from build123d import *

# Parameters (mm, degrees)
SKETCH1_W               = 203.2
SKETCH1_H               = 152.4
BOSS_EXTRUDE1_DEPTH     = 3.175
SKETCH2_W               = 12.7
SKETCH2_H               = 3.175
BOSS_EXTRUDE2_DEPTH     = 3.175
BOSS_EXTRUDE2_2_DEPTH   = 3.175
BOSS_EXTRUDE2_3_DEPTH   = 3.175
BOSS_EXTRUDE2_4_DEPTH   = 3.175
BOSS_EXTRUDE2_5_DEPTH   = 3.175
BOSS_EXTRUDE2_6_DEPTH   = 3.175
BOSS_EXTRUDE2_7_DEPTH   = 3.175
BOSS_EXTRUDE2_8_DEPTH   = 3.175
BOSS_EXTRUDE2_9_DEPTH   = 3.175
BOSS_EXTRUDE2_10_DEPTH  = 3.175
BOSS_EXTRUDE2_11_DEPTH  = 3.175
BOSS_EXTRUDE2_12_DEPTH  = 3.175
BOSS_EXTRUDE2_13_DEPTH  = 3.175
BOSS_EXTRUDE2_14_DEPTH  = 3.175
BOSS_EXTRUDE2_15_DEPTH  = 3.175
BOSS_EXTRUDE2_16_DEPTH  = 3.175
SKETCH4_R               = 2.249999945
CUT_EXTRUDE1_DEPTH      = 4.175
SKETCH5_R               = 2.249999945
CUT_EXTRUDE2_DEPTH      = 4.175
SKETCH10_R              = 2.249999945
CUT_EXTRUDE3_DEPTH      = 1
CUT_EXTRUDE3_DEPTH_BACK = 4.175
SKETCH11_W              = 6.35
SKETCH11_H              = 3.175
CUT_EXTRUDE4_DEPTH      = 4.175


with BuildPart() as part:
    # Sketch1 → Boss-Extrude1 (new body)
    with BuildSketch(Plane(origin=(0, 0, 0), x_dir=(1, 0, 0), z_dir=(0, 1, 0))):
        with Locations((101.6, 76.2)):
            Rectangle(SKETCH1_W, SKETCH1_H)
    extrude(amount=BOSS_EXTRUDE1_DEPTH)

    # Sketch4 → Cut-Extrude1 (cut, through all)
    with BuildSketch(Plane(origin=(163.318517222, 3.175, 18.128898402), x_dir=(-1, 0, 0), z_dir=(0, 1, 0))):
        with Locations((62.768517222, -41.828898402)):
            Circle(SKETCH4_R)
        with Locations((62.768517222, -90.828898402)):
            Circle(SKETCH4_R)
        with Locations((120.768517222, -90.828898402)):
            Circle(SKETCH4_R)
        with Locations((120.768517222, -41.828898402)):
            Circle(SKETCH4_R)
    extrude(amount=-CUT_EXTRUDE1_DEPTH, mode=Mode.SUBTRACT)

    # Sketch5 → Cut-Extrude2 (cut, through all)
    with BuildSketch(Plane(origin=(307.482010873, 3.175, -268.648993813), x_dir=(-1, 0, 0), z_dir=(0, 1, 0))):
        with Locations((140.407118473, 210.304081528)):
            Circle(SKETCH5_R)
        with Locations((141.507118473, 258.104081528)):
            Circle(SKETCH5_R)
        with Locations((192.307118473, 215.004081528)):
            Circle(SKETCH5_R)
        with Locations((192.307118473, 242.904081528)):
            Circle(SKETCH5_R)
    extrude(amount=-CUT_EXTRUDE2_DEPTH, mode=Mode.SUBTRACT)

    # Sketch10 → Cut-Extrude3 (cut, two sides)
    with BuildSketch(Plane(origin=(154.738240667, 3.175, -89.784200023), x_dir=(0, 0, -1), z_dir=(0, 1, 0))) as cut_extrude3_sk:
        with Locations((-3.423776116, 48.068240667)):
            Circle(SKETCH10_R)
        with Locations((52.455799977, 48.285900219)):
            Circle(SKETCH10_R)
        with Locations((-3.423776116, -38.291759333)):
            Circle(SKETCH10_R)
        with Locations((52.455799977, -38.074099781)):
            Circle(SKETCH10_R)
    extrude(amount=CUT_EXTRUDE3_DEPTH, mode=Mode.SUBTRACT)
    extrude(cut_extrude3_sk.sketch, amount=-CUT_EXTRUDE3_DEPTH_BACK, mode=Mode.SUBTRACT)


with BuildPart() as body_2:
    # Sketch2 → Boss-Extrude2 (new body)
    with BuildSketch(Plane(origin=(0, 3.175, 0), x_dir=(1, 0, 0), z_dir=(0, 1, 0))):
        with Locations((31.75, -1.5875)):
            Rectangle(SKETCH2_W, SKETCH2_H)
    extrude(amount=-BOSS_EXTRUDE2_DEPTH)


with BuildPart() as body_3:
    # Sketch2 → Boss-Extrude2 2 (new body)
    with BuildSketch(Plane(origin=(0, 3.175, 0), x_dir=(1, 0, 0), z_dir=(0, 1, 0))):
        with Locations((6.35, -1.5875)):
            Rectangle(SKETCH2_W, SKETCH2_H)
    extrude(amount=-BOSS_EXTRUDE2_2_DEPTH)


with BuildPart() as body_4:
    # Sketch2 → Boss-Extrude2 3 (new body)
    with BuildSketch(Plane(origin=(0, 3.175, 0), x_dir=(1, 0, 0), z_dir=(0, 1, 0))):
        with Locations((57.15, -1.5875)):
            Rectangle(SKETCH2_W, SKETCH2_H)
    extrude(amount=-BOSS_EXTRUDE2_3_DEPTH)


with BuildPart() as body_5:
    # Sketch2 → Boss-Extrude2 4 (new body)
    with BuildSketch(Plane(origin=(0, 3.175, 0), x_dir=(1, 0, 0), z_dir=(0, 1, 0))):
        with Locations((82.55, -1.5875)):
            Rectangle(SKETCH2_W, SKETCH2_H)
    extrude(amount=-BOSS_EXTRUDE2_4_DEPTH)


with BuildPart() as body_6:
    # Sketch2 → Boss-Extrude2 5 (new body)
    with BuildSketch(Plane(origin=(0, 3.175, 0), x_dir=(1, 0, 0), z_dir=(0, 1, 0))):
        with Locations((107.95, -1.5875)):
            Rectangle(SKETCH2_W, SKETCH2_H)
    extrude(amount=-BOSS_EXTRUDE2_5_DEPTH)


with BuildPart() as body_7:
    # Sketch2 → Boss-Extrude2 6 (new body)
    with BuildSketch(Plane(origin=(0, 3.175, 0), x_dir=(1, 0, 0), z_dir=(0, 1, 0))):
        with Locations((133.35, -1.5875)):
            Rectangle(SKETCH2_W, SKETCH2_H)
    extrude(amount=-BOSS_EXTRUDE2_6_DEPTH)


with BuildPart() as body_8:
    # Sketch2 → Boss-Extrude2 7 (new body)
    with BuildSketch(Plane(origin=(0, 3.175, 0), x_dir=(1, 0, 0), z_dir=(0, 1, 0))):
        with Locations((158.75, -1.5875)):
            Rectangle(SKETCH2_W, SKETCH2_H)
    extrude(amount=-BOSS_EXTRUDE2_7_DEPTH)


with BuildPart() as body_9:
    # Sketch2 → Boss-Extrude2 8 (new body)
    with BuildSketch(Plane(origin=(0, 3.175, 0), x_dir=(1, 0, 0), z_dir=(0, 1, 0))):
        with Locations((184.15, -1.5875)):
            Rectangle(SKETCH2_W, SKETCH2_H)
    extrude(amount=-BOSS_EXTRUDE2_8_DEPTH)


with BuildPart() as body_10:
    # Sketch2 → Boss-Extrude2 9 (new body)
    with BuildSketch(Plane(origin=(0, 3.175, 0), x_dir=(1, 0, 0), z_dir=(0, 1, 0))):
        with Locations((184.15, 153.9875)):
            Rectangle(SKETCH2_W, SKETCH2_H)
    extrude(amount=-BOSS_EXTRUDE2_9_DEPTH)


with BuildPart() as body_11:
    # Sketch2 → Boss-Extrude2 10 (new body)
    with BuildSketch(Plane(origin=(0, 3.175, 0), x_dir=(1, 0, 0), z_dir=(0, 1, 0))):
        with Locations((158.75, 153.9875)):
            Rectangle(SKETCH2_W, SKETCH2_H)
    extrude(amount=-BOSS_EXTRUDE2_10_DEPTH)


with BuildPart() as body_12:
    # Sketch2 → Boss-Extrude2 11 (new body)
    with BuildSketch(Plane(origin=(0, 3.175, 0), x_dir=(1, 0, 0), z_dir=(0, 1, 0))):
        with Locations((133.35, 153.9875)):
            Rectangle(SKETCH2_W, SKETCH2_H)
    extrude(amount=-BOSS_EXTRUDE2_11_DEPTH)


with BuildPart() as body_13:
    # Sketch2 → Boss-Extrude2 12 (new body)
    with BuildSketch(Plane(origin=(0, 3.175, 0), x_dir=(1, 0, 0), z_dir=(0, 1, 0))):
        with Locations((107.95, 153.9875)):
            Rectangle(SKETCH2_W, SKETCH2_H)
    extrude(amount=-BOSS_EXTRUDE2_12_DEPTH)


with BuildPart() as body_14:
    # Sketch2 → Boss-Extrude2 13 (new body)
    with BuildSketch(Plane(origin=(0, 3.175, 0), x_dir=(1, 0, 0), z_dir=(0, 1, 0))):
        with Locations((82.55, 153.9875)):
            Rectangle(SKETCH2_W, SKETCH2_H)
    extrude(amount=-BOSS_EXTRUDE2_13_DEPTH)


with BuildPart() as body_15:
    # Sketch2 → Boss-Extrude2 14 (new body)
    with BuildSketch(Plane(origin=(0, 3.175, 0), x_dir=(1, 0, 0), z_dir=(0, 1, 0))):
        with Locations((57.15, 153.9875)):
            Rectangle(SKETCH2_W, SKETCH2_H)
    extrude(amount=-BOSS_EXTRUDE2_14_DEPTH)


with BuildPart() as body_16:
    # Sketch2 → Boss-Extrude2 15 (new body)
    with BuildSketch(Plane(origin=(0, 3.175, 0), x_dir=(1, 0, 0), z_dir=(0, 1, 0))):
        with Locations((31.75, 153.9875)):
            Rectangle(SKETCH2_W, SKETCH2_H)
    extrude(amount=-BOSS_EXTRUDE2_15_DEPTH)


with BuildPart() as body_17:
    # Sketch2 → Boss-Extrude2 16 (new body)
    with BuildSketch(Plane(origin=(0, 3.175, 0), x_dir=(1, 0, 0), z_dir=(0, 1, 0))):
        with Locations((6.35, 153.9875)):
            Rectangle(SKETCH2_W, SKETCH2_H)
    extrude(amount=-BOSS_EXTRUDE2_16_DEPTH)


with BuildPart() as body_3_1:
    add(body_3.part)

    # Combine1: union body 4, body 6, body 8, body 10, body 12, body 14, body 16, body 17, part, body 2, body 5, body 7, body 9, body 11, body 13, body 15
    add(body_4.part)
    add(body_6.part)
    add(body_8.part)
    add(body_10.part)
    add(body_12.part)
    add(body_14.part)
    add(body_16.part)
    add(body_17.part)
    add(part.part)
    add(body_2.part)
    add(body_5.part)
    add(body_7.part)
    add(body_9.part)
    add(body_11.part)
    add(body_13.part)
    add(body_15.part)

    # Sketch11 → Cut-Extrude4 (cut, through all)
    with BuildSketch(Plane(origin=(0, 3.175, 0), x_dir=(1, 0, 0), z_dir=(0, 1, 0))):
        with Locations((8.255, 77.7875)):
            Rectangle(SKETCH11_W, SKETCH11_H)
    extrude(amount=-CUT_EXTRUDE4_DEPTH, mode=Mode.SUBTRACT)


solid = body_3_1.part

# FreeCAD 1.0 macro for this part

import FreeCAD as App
import Part
import Sketcher
Q = App.Units.Quantity


def add_polygon(sketch, points):
    """Adds a closed chain of lines whose ends are joined by coincident constraints."""
    first, n = sketch.GeometryCount, len(points)
    for a, b in zip(points, points[1:] + points[:1]):
        sketch.addGeometry(Part.LineSegment(App.Vector(*a, 0), App.Vector(*b, 0)), False)
    for i in range(n):
        sketch.addConstraint(Sketcher.Constraint("Coincident", first + i, 2, first + (i + 1) % n, 1))

doc = App.newDocument("Part")
params = doc.addObject("Spreadsheet::Sheet", "Params")
for row, (alias, value) in enumerate([
    ("sketch1_width", "8 in"),
    ("sketch1_height", "6 in"),
    ("pad1_length", "0.125 in"),
    ("sketch5_width", "0.5 in"),
    ("sketch5_height", "0.125 in"),
    ("pad2_length", "0.125 in"),
    ("sketch6_width", "0.5 in"),
    ("sketch6_height", "0.125 in"),
    ("pad3_length", "0.125 in"),
    ("sketch7_width", "0.5 in"),
    ("sketch7_height", "0.125 in"),
    ("pad4_length", "0.125 in"),
    ("sketch8_width", "0.5 in"),
    ("sketch8_height", "0.125 in"),
    ("pad5_length", "0.125 in"),
    ("sketch9_width", "0.5 in"),
    ("sketch9_height", "0.125 in"),
    ("pad6_length", "0.125 in"),
    ("sketch10_width", "0.5 in"),
    ("sketch10_height", "0.125 in"),
    ("pad7_length", "0.125 in"),
    ("sketch11_width", "0.5 in"),
    ("sketch11_height", "0.125 in"),
    ("pad8_length", "0.125 in"),
    ("sketch12_width", "0.5 in"),
    ("sketch12_height", "0.125 in"),
    ("pad9_length", "0.125 in"),
    ("sketch13_width", "0.5 in"),
    ("sketch13_height", "0.125 in"),
    ("pad10_length", "0.125 in"),
    ("sketch14_width", "0.5 in"),
    ("sketch14_height", "0.125 in"),
    ("pad11_length", "0.125 in"),
    ("sketch15_width", "0.5 in"),
    ("sketch15_height", "0.125 in"),
    ("pad12_length", "0.125 in"),
    ("sketch16_width", "0.5 in"),
    ("sketch16_height", "0.125 in"),
    ("pad13_length", "0.125 in"),
    ("sketch17_width", "0.5 in"),
    ("sketch17_height", "0.125 in"),
    ("pad14_length", "0.125 in"),
    ("sketch18_width", "0.5 in"),
    ("sketch18_height", "0.125 in"),
    ("pad15_length", "0.125 in"),
    ("sketch19_width", "0.5 in"),
    ("sketch19_height", "0.125 in"),
    ("pad16_length", "0.125 in"),
    ("sketch20_width", "0.5 in"),
    ("sketch20_height", "0.125 in"),
    ("pad17_length", "0.125 in"),
    ("sketch21_width", "0.25 in"),
    ("sketch21_height", "0.125 in"),
], start=1):
    params.set(f"A{row}", alias)
    params.set(f"B{row}", "=" + value)
    params.setAlias(f"B{row}", alias)

body = doc.addObject("PartDesign::Body", "Body")

# Sketch on XZ plane
sketch1 = doc.addObject("Sketcher::SketchObject", "Sketch")
body.addObject(sketch1)
sketch1.AttachmentSupport = (doc.XZ_Plane, [""])
sketch1.MapMode = "FlatFace"
add_polygon(sketch1, [(0, -152), (0, 0), (203, 0), (203, -152)])  # lines 0-3
sketch1.addConstraint([
    Sketcher.Constraint("Vertical", 0),
    Sketcher.Constraint("Horizontal", 1),
    Sketcher.Constraint("Vertical", 2),
    Sketcher.Constraint("Horizontal", 3),
    Sketcher.Constraint("Coincident", 0, 2, -1, 1),
    Sketcher.Constraint("DistanceX", 1, 1, 1, 2, Q("8 in")),
    Sketcher.Constraint("DistanceY", 0, 1, 0, 2, Q("6 in")),
])
sketch1.setExpression("Constraints[9]", "Params.sketch1_width")
sketch1.setExpression("Constraints[10]", "Params.sketch1_height")
pad1 = doc.addObject("PartDesign::Pad", "Pad")
body.addObject(pad1)
pad1.Profile = sketch1
pad1.setExpression("Length", "Params.pad1_length")
pad1.Reversed = True

# Sketch on XZ plane
sketch2 = doc.addObject("Sketcher::SketchObject", "Sketch001")
body.addObject(sketch2)
sketch2.AttachmentSupport = (doc.XZ_Plane, [""])
sketch2.MapMode = "FlatFace"
sketch2.AttachmentOffset = App.Placement(App.Vector(0, 0, -0.125 * 25.4), App.Rotation())
sketch2.addGeometry([
    Part.Circle(App.Vector(100.5, -23.7, 0), App.Vector(0, 0, 1), 2.2),
    Part.Circle(App.Vector(100.5, -72.7, 0), App.Vector(0, 0, 1), 2.2),
    Part.Circle(App.Vector(42.5, -72.7, 0), App.Vector(0, 0, 1), 2.2),
    Part.Circle(App.Vector(42.5, -23.7, 0), App.Vector(0, 0, 1), 2.2),
], False)
sketch2.addConstraint([
    Sketcher.Constraint("Equal", 0, 1),
    Sketcher.Constraint("Equal", 1, 2),
    Sketcher.Constraint("Equal", 2, 3),
    Sketcher.Constraint("Horizontal", 1, 3, 2, 3),
    Sketcher.Constraint("Horizontal", 0, 3, 3, 3),
    Sketcher.Constraint("Vertical", 0, 3, 1, 3),
    Sketcher.Constraint("Vertical", 2, 3, 3, 3),
    Sketcher.Constraint("Diameter", 0, Q("4.5 mm")),
    Sketcher.Constraint("DistanceX", -1, 1, 0, 3, Q("100.55 mm")),
    Sketcher.Constraint("DistanceY", 0, 3, -1, 1, Q("23.7 mm")),
    Sketcher.Constraint("DistanceY", 1, 3, -1, 1, Q("72.7 mm")),
    Sketcher.Constraint("DistanceX", -1, 1, 2, 3, Q("42.55 mm")),
])
pocket1 = doc.addObject("PartDesign::Pocket", "Pocket")
body.addObject(pocket1)
pocket1.Profile = sketch2
pocket1.Type = "ThroughAll"
pocket1.Reversed = True

# Sketch on XZ plane
sketch3 = doc.addObject("Sketcher::SketchObject", "Sketch002")
body.addObject(sketch3)
sketch3.AttachmentSupport = (doc.XZ_Plane, [""])
sketch3.MapMode = "FlatFace"
sketch3.AttachmentOffset = App.Placement(App.Vector(0, 0, -0.125 * 25.4), App.Rotation())
sketch3.addGeometry([
    Part.Circle(App.Vector(167.1, -58.3, 0), App.Vector(0, 0, 1), 2.2),
    Part.Circle(App.Vector(166, -10.5, 0), App.Vector(0, 0, 1), 2.2),
    Part.Circle(App.Vector(115.2, -53.6, 0), App.Vector(0, 0, 1), 2.2),
    Part.Circle(App.Vector(115.2, -25.7, 0), App.Vector(0, 0, 1), 2.2),
], False)
sketch3.addConstraint([
    Sketcher.Constraint("Equal", 0, 1),
    Sketcher.Constraint("Equal", 1, 2),
    Sketcher.Constraint("Equal", 2, 3),
    Sketcher.Constraint("Vertical", 2, 3, 3, 3),
    Sketcher.Constraint("DistanceX", 2, 3, 1, 3, Q("2 in")),
    Sketcher.Constraint("Diameter", 0, Q("4.5 mm")),
    Sketcher.Constraint("DistanceX", 1, 3, 0, 3, Q("1.1 mm")),
    Sketcher.Constraint("DistanceY", 0, 3, 1, 3, Q("47.8 mm")),
    Sketcher.Constraint("DistanceY", 0, 3, 2, 3, Q("4.7 mm")),
    Sketcher.Constraint("DistanceY", 2, 3, 3, 3, Q("27.9 mm")),
    Sketcher.Constraint("DistanceX", -1, 1, 0, 3, Q("167.074892 mm")),
    Sketcher.Constraint("DistanceY", 0, 3, -1, 1, Q("58.344912 mm")),
])
pocket2 = doc.addObject("PartDesign::Pocket", "Pocket001")
body.addObject(pocket2)
pocket2.Profile = sketch3
pocket2.Type = "ThroughAll"
pocket2.Reversed = True

# Sketch on XZ plane
sketch4 = doc.addObject("Sketcher::SketchObject", "Sketch003")
body.addObject(sketch4)
sketch4.AttachmentSupport = (doc.XZ_Plane, [""])
sketch4.MapMode = "FlatFace"
sketch4.AttachmentOffset = App.Placement(App.Vector(0, 0, -0.125 * 25.4), App.Rotation())
sketch4.addGeometry([
    Part.Circle(App.Vector(106.7, -86.4, 0), App.Vector(0, 0, 1), 2.2),
    Part.Circle(App.Vector(106.5, -142.2, 0), App.Vector(0, 0, 1), 2.2),
    Part.Circle(App.Vector(193, -86.4, 0), App.Vector(0, 0, 1), 2.2),
    Part.Circle(App.Vector(192.8, -142.2, 0), App.Vector(0, 0, 1), 2.2),
], False)
sketch4.addConstraint([
    Sketcher.Constraint("Equal", 0, 1),
    Sketcher.Constraint("Equal", 1, 2),
    Sketcher.Constraint("Equal", 2, 3),
    Sketcher.Constraint("Horizontal", 0, 3, 2, 3),
    Sketcher.Constraint("Horizontal", 1, 3, 3, 3),
    Sketcher.Constraint("DistanceY", 1, 3, -1, 1, Q("5.6 in")),
    Sketcher.Constraint("DistanceX", 0, 3, 2, 3, Q("3.4 in")),
    Sketcher.Constraint("DistanceX", 1, 3, 3, 3, Q("3.4 in")),
    Sketcher.Constraint("Diameter", 0, Q("4.5 mm")),
    Sketcher.Constraint("DistanceX", -1, 1, 0, 3, Q("106.67 mm")),
    Sketcher.Constraint("DistanceX", -1, 1, 1, 3, Q("106.45234 mm")),
    Sketcher.Constraint("DistanceY", 0, 3, -1, 1, Q("86.360424 mm")),
])
pocket3 = doc.addObject("PartDesign::Pocket", "Pocket002")
body.addObject(pocket3)
pocket3.Profile = sketch4
pocket3.Type = "ThroughAll"
pocket3.Midplane = True
body2 = doc.addObject("PartDesign::Body", "Body001")

# Sketch on XZ plane
sketch5 = doc.addObject("Sketcher::SketchObject", "Sketch004")
body2.addObject(sketch5)
sketch5.AttachmentSupport = (doc.getObject("XZ_Plane001"), [""])
sketch5.MapMode = "FlatFace"
sketch5.AttachmentOffset = App.Placement(App.Vector(0, 0, -0.125 * 25.4), App.Rotation())
add_polygon(sketch5, [(25.4, 0), (25.4, 3.2), (38.1, 3.2), (38.1, 0)])  # lines 0-3
sketch5.addConstraint([
    Sketcher.Constraint("Vertical", 0),
    Sketcher.Constraint("Horizontal", 1),
    Sketcher.Constraint("Vertical", 2),
    Sketcher.Constraint("Horizontal", 3),
    Sketcher.Constraint("PointOnObject", 2, 2, -1),
    Sketcher.Constraint("DistanceX", 1, 1, 1, 2, Q("0.5 in")),
    Sketcher.Constraint("DistanceX", -1, 1, 0, 2, Q("1 in")),
    Sketcher.Constraint("DistanceY", 0, 1, 0, 2, Q("0.125 in")),
])
sketch5.setExpression("Constraints[9]", "Params.sketch5_width")
sketch5.setExpression("Constraints[11]", "Params.sketch5_height")
pad2 = doc.addObject("PartDesign::Pad", "Pad001")
body2.addObject(pad2)
pad2.Profile = sketch5
pad2.setExpression("Length", "Params.pad2_length")
body3 = doc.addObject("PartDesign::Body", "Body002")

# Sketch on XZ plane
sketch6 = doc.addObject("Sketcher::SketchObject", "Sketch005")
body3.addObject(sketch6)
sketch6.AttachmentSupport = (doc.getObject("XZ_Plane002"), [""])
sketch6.MapMode = "FlatFace"
sketch6.AttachmentOffset = App.Placement(App.Vector(0, 0, -0.125 * 25.4), App.Rotation())
add_polygon(sketch6, [(0, 0), (0, 3.2), (12.7, 3.2), (12.7, 0)])  # lines 0-3
sketch6.addConstraint([
    Sketcher.Constraint("Vertical", 0),
    Sketcher.Constraint("Horizontal", 1),
    Sketcher.Constraint("Vertical", 2),
    Sketcher.Constraint("Horizontal", 3),
    Sketcher.Constraint("Coincident", 3, 2, -1, 1),
    Sketcher.Constraint("DistanceX", 1, 1, 1, 2, Q("0.5 in")),
    Sketcher.Constraint("DistanceY", 0, 1, 0, 2, Q("0.125 in")),
])
sketch6.setExpression("Constraints[9]", "Params.sketch6_width")
sketch6.setExpression("Constraints[10]", "Params.sketch6_height")
pad3 = doc.addObject("PartDesign::Pad", "Pad002")
body3.addObject(pad3)
pad3.Profile = sketch6
pad3.setExpression("Length", "Params.pad3_length")
body4 = doc.addObject("PartDesign::Body", "Body003")

# Sketch on XZ plane
sketch7 = doc.addObject("Sketcher::SketchObject", "Sketch006")
body4.addObject(sketch7)
sketch7.AttachmentSupport = (doc.getObject("XZ_Plane003"), [""])
sketch7.MapMode = "FlatFace"
sketch7.AttachmentOffset = App.Placement(App.Vector(0, 0, -0.125 * 25.4), App.Rotation())
add_polygon(sketch7, [(50.8, 0), (50.8, 3.2), (63.5, 3.2), (63.5, 0)])  # lines 0-3
sketch7.addConstraint([
    Sketcher.Constraint("Vertical", 0),
    Sketcher.Constraint("Horizontal", 1),
    Sketcher.Constraint("Vertical", 2),
    Sketcher.Constraint("Horizontal", 3),
    Sketcher.Constraint("PointOnObject", 2, 2, -1),
    Sketcher.Constraint("DistanceX", 1, 1, 1, 2, Q("0.5 in")),
    Sketcher.Constraint("DistanceX", -1, 1, 0, 2, Q("2 in")),
    Sketcher.Constraint("DistanceY", 0, 1, 0, 2, Q("0.125 in")),
])
sketch7.setExpression("Constraints[9]", "Params.sketch7_width")
sketch7.setExpression("Constraints[11]", "Params.sketch7_height")
pad4 = doc.addObject("PartDesign::Pad", "Pad003")
body4.addObject(pad4)
pad4.Profile = sketch7
pad4.setExpression("Length", "Params.pad4_length")
body5 = doc.addObject("PartDesign::Body", "Body004")

# Sketch on XZ plane
sketch8 = doc.addObject("Sketcher::SketchObject", "Sketch007")
body5.addObject(sketch8)
sketch8.AttachmentSupport = (doc.getObject("XZ_Plane004"), [""])
sketch8.MapMode = "FlatFace"
sketch8.AttachmentOffset = App.Placement(App.Vector(0, 0, -0.125 * 25.4), App.Rotation())
add_polygon(sketch8, [(76.2, 0), (76.2, 3.2), (88.9, 3.2), (88.9, 0)])  # lines 0-3
sketch8.addConstraint([
    Sketcher.Constraint("Vertical", 0),
    Sketcher.Constraint("Horizontal", 1),
    Sketcher.Constraint("Vertical", 2),
    Sketcher.Constraint("Horizontal", 3),
    Sketcher.Constraint("PointOnObject", 2, 2, -1),
    Sketcher.Constraint("DistanceX", 1, 1, 1, 2, Q("0.5 in")),
    Sketcher.Constraint("DistanceX", -1, 1, 0, 2, Q("3 in")),
    Sketcher.Constraint("DistanceY", 0, 1, 0, 2, Q("0.125 in")),
])
sketch8.setExpression("Constraints[9]", "Params.sketch8_width")
sketch8.setExpression("Constraints[11]", "Params.sketch8_height")
pad5 = doc.addObject("PartDesign::Pad", "Pad004")
body5.addObject(pad5)
pad5.Profile = sketch8
pad5.setExpression("Length", "Params.pad5_length")
body6 = doc.addObject("PartDesign::Body", "Body005")

# Sketch on XZ plane
sketch9 = doc.addObject("Sketcher::SketchObject", "Sketch008")
body6.addObject(sketch9)
sketch9.AttachmentSupport = (doc.getObject("XZ_Plane005"), [""])
sketch9.MapMode = "FlatFace"
sketch9.AttachmentOffset = App.Placement(App.Vector(0, 0, -0.125 * 25.4), App.Rotation())
add_polygon(sketch9, [(101.6, 0), (101.6, 3.2), (114.3, 3.2), (114.3, 0)])  # lines 0-3
sketch9.addConstraint([
    Sketcher.Constraint("Vertical", 0),
    Sketcher.Constraint("Horizontal", 1),
    Sketcher.Constraint("Vertical", 2),
    Sketcher.Constraint("Horizontal", 3),
    Sketcher.Constraint("PointOnObject", 2, 2, -1),
    Sketcher.Constraint("DistanceX", 1, 1, 1, 2, Q("0.5 in")),
    Sketcher.Constraint("DistanceX", -1, 1, 0, 2, Q("4 in")),
    Sketcher.Constraint("DistanceY", 0, 1, 0, 2, Q("0.125 in")),
])
sketch9.setExpression("Constraints[9]", "Params.sketch9_width")
sketch9.setExpression("Constraints[11]", "Params.sketch9_height")
pad6 = doc.addObject("PartDesign::Pad", "Pad005")
body6.addObject(pad6)
pad6.Profile = sketch9
pad6.setExpression("Length", "Params.pad6_length")
body7 = doc.addObject("PartDesign::Body", "Body006")

# Sketch on XZ plane
sketch10 = doc.addObject("Sketcher::SketchObject", "Sketch009")
body7.addObject(sketch10)
sketch10.AttachmentSupport = (doc.getObject("XZ_Plane006"), [""])
sketch10.MapMode = "FlatFace"
sketch10.AttachmentOffset = App.Placement(App.Vector(0, 0, -0.125 * 25.4), App.Rotation())
add_polygon(sketch10, [(127, 0), (127, 3.2), (139.7, 3.2), (139.7, 0)])  # lines 0-3
sketch10.addConstraint([
    Sketcher.Constraint("Vertical", 0),
    Sketcher.Constraint("Horizontal", 1),
    Sketcher.Constraint("Vertical", 2),
    Sketcher.Constraint("Horizontal", 3),
    Sketcher.Constraint("PointOnObject", 2, 2, -1),
    Sketcher.Constraint("DistanceX", 1, 1, 1, 2, Q("0.5 in")),
    Sketcher.Constraint("DistanceX", -1, 1, 0, 2, Q("5 in")),
    Sketcher.Constraint("DistanceY", 0, 1, 0, 2, Q("0.125 in")),
])
sketch10.setExpression("Constraints[9]", "Params.sketch10_width")
sketch10.setExpression("Constraints[11]", "Params.sketch10_height")
pad7 = doc.addObject("PartDesign::Pad", "Pad006")
body7.addObject(pad7)
pad7.Profile = sketch10
pad7.setExpression("Length", "Params.pad7_length")
body8 = doc.addObject("PartDesign::Body", "Body007")

# Sketch on XZ plane
sketch11 = doc.addObject("Sketcher::SketchObject", "Sketch010")
body8.addObject(sketch11)
sketch11.AttachmentSupport = (doc.getObject("XZ_Plane007"), [""])
sketch11.MapMode = "FlatFace"
sketch11.AttachmentOffset = App.Placement(App.Vector(0, 0, -0.125 * 25.4), App.Rotation())
add_polygon(sketch11, [(152.4, 0), (152.4, 3.2), (165.1, 3.2), (165.1, 0)])  # lines 0-3
sketch11.addConstraint([
    Sketcher.Constraint("Vertical", 0),
    Sketcher.Constraint("Horizontal", 1),
    Sketcher.Constraint("Vertical", 2),
    Sketcher.Constraint("Horizontal", 3),
    Sketcher.Constraint("PointOnObject", 2, 2, -1),
    Sketcher.Constraint("DistanceX", 1, 1, 1, 2, Q("0.5 in")),
    Sketcher.Constraint("DistanceX", -1, 1, 0, 2, Q("6 in")),
    Sketcher.Constraint("DistanceY", 0, 1, 0, 2, Q("0.125 in")),
])
sketch11.setExpression("Constraints[9]", "Params.sketch11_width")
sketch11.setExpression("Constraints[11]", "Params.sketch11_height")
pad8 = doc.addObject("PartDesign::Pad", "Pad007")
body8.addObject(pad8)
pad8.Profile = sketch11
pad8.setExpression("Length", "Params.pad8_length")
body9 = doc.addObject("PartDesign::Body", "Body008")

# Sketch on XZ plane
sketch12 = doc.addObject("Sketcher::SketchObject", "Sketch011")
body9.addObject(sketch12)
sketch12.AttachmentSupport = (doc.getObject("XZ_Plane008"), [""])
sketch12.MapMode = "FlatFace"
sketch12.AttachmentOffset = App.Placement(App.Vector(0, 0, -0.125 * 25.4), App.Rotation())
add_polygon(sketch12, [(177.8, 0), (177.8, 3.2), (190.5, 3.2), (190.5, 0)])  # lines 0-3
sketch12.addConstraint([
    Sketcher.Constraint("Vertical", 0),
    Sketcher.Constraint("Horizontal", 1),
    Sketcher.Constraint("Vertical", 2),
    Sketcher.Constraint("Horizontal", 3),
    Sketcher.Constraint("PointOnObject", 2, 2, -1),
    Sketcher.Constraint("DistanceX", 1, 1, 1, 2, Q("0.5 in")),
    Sketcher.Constraint("DistanceX", -1, 1, 0, 2, Q("7 in")),
    Sketcher.Constraint("DistanceY", 0, 1, 0, 2, Q("0.125 in")),
])
sketch12.setExpression("Constraints[9]", "Params.sketch12_width")
sketch12.setExpression("Constraints[11]", "Params.sketch12_height")
pad9 = doc.addObject("PartDesign::Pad", "Pad008")
body9.addObject(pad9)
pad9.Profile = sketch12
pad9.setExpression("Length", "Params.pad9_length")
body10 = doc.addObject("PartDesign::Body", "Body009")

# Sketch on XZ plane
sketch13 = doc.addObject("Sketcher::SketchObject", "Sketch012")
body10.addObject(sketch13)
sketch13.AttachmentSupport = (doc.getObject("XZ_Plane009"), [""])
sketch13.MapMode = "FlatFace"
sketch13.AttachmentOffset = App.Placement(App.Vector(0, 0, -0.125 * 25.4), App.Rotation())
add_polygon(sketch13, [(177.8, -155.6), (177.8, -152.4), (190.5, -152.4), (190.5, -155.6)])  # lines 0-3
sketch13.addConstraint([
    Sketcher.Constraint("Vertical", 0),
    Sketcher.Constraint("Horizontal", 1),
    Sketcher.Constraint("Vertical", 2),
    Sketcher.Constraint("Horizontal", 3),
    Sketcher.Constraint("DistanceX", 1, 1, 1, 2, Q("0.5 in")),
    Sketcher.Constraint("DistanceX", -1, 1, 0, 2, Q("7 in")),
    Sketcher.Constraint("DistanceY", 0, 2, -1, 1, Q("6 in")),
    Sketcher.Constraint("DistanceY", 0, 1, 0, 2, Q("0.125 in")),
])
sketch13.setExpression("Constraints[8]", "Params.sketch13_width")
sketch13.setExpression("Constraints[11]", "Params.sketch13_height")
pad10 = doc.addObject("PartDesign::Pad", "Pad009")
body10.addObject(pad10)
pad10.Profile = sketch13
pad10.setExpression("Length", "Params.pad10_length")
body11 = doc.addObject("PartDesign::Body", "Body010")

# Sketch on XZ plane
sketch14 = doc.addObject("Sketcher::SketchObject", "Sketch013")
body11.addObject(sketch14)
sketch14.AttachmentSupport = (doc.getObject("XZ_Plane010"), [""])
sketch14.MapMode = "FlatFace"
sketch14.AttachmentOffset = App.Placement(App.Vector(0, 0, -0.125 * 25.4), App.Rotation())
add_polygon(sketch14, [(152.4, -155.6), (152.4, -152.4), (165.1, -152.4), (165.1, -155.6)])  # lines 0-3
sketch14.addConstraint([
    Sketcher.Constraint("Vertical", 0),
    Sketcher.Constraint("Horizontal", 1),
    Sketcher.Constraint("Vertical", 2),
    Sketcher.Constraint("Horizontal", 3),
    Sketcher.Constraint("DistanceX", 1, 1, 1, 2, Q("0.5 in")),
    Sketcher.Constraint("DistanceX", -1, 1, 0, 2, Q("6 in")),
    Sketcher.Constraint("DistanceY", 0, 2, -1, 1, Q("6 in")),
    Sketcher.Constraint("DistanceY", 0, 1, 0, 2, Q("0.125 in")),
])
sketch14.setExpression("Constraints[8]", "Params.sketch14_width")
sketch14.setExpression("Constraints[11]", "Params.sketch14_height")
pad11 = doc.addObject("PartDesign::Pad", "Pad010")
body11.addObject(pad11)
pad11.Profile = sketch14
pad11.setExpression("Length", "Params.pad11_length")
body12 = doc.addObject("PartDesign::Body", "Body011")

# Sketch on XZ plane
sketch15 = doc.addObject("Sketcher::SketchObject", "Sketch014")
body12.addObject(sketch15)
sketch15.AttachmentSupport = (doc.getObject("XZ_Plane011"), [""])
sketch15.MapMode = "FlatFace"
sketch15.AttachmentOffset = App.Placement(App.Vector(0, 0, -0.125 * 25.4), App.Rotation())
add_polygon(sketch15, [(127, -155.6), (127, -152.4), (139.7, -152.4), (139.7, -155.6)])  # lines 0-3
sketch15.addConstraint([
    Sketcher.Constraint("Vertical", 0),
    Sketcher.Constraint("Horizontal", 1),
    Sketcher.Constraint("Vertical", 2),
    Sketcher.Constraint("Horizontal", 3),
    Sketcher.Constraint("DistanceX", 1, 1, 1, 2, Q("0.5 in")),
    Sketcher.Constraint("DistanceX", -1, 1, 0, 2, Q("5 in")),
    Sketcher.Constraint("DistanceY", 0, 2, -1, 1, Q("6 in")),
    Sketcher.Constraint("DistanceY", 0, 1, 0, 2, Q("0.125 in")),
])
sketch15.setExpression("Constraints[8]", "Params.sketch15_width")
sketch15.setExpression("Constraints[11]", "Params.sketch15_height")
pad12 = doc.addObject("PartDesign::Pad", "Pad011")
body12.addObject(pad12)
pad12.Profile = sketch15
pad12.setExpression("Length", "Params.pad12_length")
body13 = doc.addObject("PartDesign::Body", "Body012")

# Sketch on XZ plane
sketch16 = doc.addObject("Sketcher::SketchObject", "Sketch015")
body13.addObject(sketch16)
sketch16.AttachmentSupport = (doc.getObject("XZ_Plane012"), [""])
sketch16.MapMode = "FlatFace"
sketch16.AttachmentOffset = App.Placement(App.Vector(0, 0, -0.125 * 25.4), App.Rotation())
add_polygon(sketch16, [(101.6, -155.6), (101.6, -152.4), (114.3, -152.4), (114.3, -155.6)])  # lines 0-3
sketch16.addConstraint([
    Sketcher.Constraint("Vertical", 0),
    Sketcher.Constraint("Horizontal", 1),
    Sketcher.Constraint("Vertical", 2),
    Sketcher.Constraint("Horizontal", 3),
    Sketcher.Constraint("DistanceX", 1, 1, 1, 2, Q("0.5 in")),
    Sketcher.Constraint("DistanceX", -1, 1, 0, 2, Q("4 in")),
    Sketcher.Constraint("DistanceY", 0, 2, -1, 1, Q("6 in")),
    Sketcher.Constraint("DistanceY", 0, 1, 0, 2, Q("0.125 in")),
])
sketch16.setExpression("Constraints[8]", "Params.sketch16_width")
sketch16.setExpression("Constraints[11]", "Params.sketch16_height")
pad13 = doc.addObject("PartDesign::Pad", "Pad012")
body13.addObject(pad13)
pad13.Profile = sketch16
pad13.setExpression("Length", "Params.pad13_length")
body14 = doc.addObject("PartDesign::Body", "Body013")

# Sketch on XZ plane
sketch17 = doc.addObject("Sketcher::SketchObject", "Sketch016")
body14.addObject(sketch17)
sketch17.AttachmentSupport = (doc.getObject("XZ_Plane013"), [""])
sketch17.MapMode = "FlatFace"
sketch17.AttachmentOffset = App.Placement(App.Vector(0, 0, -0.125 * 25.4), App.Rotation())
add_polygon(sketch17, [(76.2, -155.6), (76.2, -152.4), (88.9, -152.4), (88.9, -155.6)])  # lines 0-3
sketch17.addConstraint([
    Sketcher.Constraint("Vertical", 0),
    Sketcher.Constraint("Horizontal", 1),
    Sketcher.Constraint("Vertical", 2),
    Sketcher.Constraint("Horizontal", 3),
    Sketcher.Constraint("DistanceX", 1, 1, 1, 2, Q("0.5 in")),
    Sketcher.Constraint("DistanceX", -1, 1, 0, 2, Q("3 in")),
    Sketcher.Constraint("DistanceY", 0, 2, -1, 1, Q("6 in")),
    Sketcher.Constraint("DistanceY", 0, 1, 0, 2, Q("0.125 in")),
])
sketch17.setExpression("Constraints[8]", "Params.sketch17_width")
sketch17.setExpression("Constraints[11]", "Params.sketch17_height")
pad14 = doc.addObject("PartDesign::Pad", "Pad013")
body14.addObject(pad14)
pad14.Profile = sketch17
pad14.setExpression("Length", "Params.pad14_length")
body15 = doc.addObject("PartDesign::Body", "Body014")

# Sketch on XZ plane
sketch18 = doc.addObject("Sketcher::SketchObject", "Sketch017")
body15.addObject(sketch18)
sketch18.AttachmentSupport = (doc.getObject("XZ_Plane014"), [""])
sketch18.MapMode = "FlatFace"
sketch18.AttachmentOffset = App.Placement(App.Vector(0, 0, -0.125 * 25.4), App.Rotation())
add_polygon(sketch18, [(50.8, -155.6), (50.8, -152.4), (63.5, -152.4), (63.5, -155.6)])  # lines 0-3
sketch18.addConstraint([
    Sketcher.Constraint("Vertical", 0),
    Sketcher.Constraint("Horizontal", 1),
    Sketcher.Constraint("Vertical", 2),
    Sketcher.Constraint("Horizontal", 3),
    Sketcher.Constraint("DistanceX", 1, 1, 1, 2, Q("0.5 in")),
    Sketcher.Constraint("DistanceX", -1, 1, 0, 2, Q("2 in")),
    Sketcher.Constraint("DistanceY", 0, 2, -1, 1, Q("6 in")),
    Sketcher.Constraint("DistanceY", 0, 1, 0, 2, Q("0.125 in")),
])
sketch18.setExpression("Constraints[8]", "Params.sketch18_width")
sketch18.setExpression("Constraints[11]", "Params.sketch18_height")
pad15 = doc.addObject("PartDesign::Pad", "Pad014")
body15.addObject(pad15)
pad15.Profile = sketch18
pad15.setExpression("Length", "Params.pad15_length")
body16 = doc.addObject("PartDesign::Body", "Body015")

# Sketch on XZ plane
sketch19 = doc.addObject("Sketcher::SketchObject", "Sketch018")
body16.addObject(sketch19)
sketch19.AttachmentSupport = (doc.getObject("XZ_Plane015"), [""])
sketch19.MapMode = "FlatFace"
sketch19.AttachmentOffset = App.Placement(App.Vector(0, 0, -0.125 * 25.4), App.Rotation())
add_polygon(sketch19, [(25.4, -155.6), (25.4, -152.4), (38.1, -152.4), (38.1, -155.6)])  # lines 0-3
sketch19.addConstraint([
    Sketcher.Constraint("Vertical", 0),
    Sketcher.Constraint("Horizontal", 1),
    Sketcher.Constraint("Vertical", 2),
    Sketcher.Constraint("Horizontal", 3),
    Sketcher.Constraint("DistanceX", 1, 1, 1, 2, Q("0.5 in")),
    Sketcher.Constraint("DistanceX", -1, 1, 0, 2, Q("1 in")),
    Sketcher.Constraint("DistanceY", 0, 2, -1, 1, Q("6 in")),
    Sketcher.Constraint("DistanceY", 0, 1, 0, 2, Q("0.125 in")),
])
sketch19.setExpression("Constraints[8]", "Params.sketch19_width")
sketch19.setExpression("Constraints[11]", "Params.sketch19_height")
pad16 = doc.addObject("PartDesign::Pad", "Pad015")
body16.addObject(pad16)
pad16.Profile = sketch19
pad16.setExpression("Length", "Params.pad16_length")
body17 = doc.addObject("PartDesign::Body", "Body016")

# Sketch on XZ plane
sketch20 = doc.addObject("Sketcher::SketchObject", "Sketch019")
body17.addObject(sketch20)
sketch20.AttachmentSupport = (doc.getObject("XZ_Plane016"), [""])
sketch20.MapMode = "FlatFace"
sketch20.AttachmentOffset = App.Placement(App.Vector(0, 0, -0.125 * 25.4), App.Rotation())
add_polygon(sketch20, [(0, -155.6), (0, -152.4), (12.7, -152.4), (12.7, -155.6)])  # lines 0-3
sketch20.addConstraint([
    Sketcher.Constraint("Vertical", 0),
    Sketcher.Constraint("Horizontal", 1),
    Sketcher.Constraint("Vertical", 2),
    Sketcher.Constraint("Horizontal", 3),
    Sketcher.Constraint("PointOnObject", 0, 2, -2),
    Sketcher.Constraint("DistanceX", 1, 1, 1, 2, Q("0.5 in")),
    Sketcher.Constraint("DistanceY", 0, 2, -1, 1, Q("6 in")),
    Sketcher.Constraint("DistanceY", 0, 1, 0, 2, Q("0.125 in")),
])
sketch20.setExpression("Constraints[9]", "Params.sketch20_width")
sketch20.setExpression("Constraints[11]", "Params.sketch20_height")
pad17 = doc.addObject("PartDesign::Pad", "Pad016")
body17.addObject(pad17)
pad17.Profile = sketch20
pad17.setExpression("Length", "Params.pad17_length")
body3.AllowCompound = True
doc.recompute()

boolean = doc.addObject("PartDesign::Boolean", "Boolean")
body3.addObject(boolean)
boolean.Type = "Fuse"
boolean.addObjects([body4])
doc.recompute()

boolean2 = doc.addObject("PartDesign::Boolean", "Boolean001")
body3.addObject(boolean2)
boolean2.Type = "Fuse"
boolean2.addObjects([body6])
doc.recompute()

boolean3 = doc.addObject("PartDesign::Boolean", "Boolean002")
body3.addObject(boolean3)
boolean3.Type = "Fuse"
boolean3.addObjects([body8])
doc.recompute()

boolean4 = doc.addObject("PartDesign::Boolean", "Boolean003")
body3.addObject(boolean4)
boolean4.Type = "Fuse"
boolean4.addObjects([body10])
doc.recompute()

boolean5 = doc.addObject("PartDesign::Boolean", "Boolean004")
body3.addObject(boolean5)
boolean5.Type = "Fuse"
boolean5.addObjects([body12])
doc.recompute()

boolean6 = doc.addObject("PartDesign::Boolean", "Boolean005")
body3.addObject(boolean6)
boolean6.Type = "Fuse"
boolean6.addObjects([body14])
doc.recompute()

boolean7 = doc.addObject("PartDesign::Boolean", "Boolean006")
body3.addObject(boolean7)
boolean7.Type = "Fuse"
boolean7.addObjects([body16])
doc.recompute()

boolean8 = doc.addObject("PartDesign::Boolean", "Boolean007")
body3.addObject(boolean8)
boolean8.Type = "Fuse"
boolean8.addObjects([body17])
doc.recompute()

boolean9 = doc.addObject("PartDesign::Boolean", "Boolean008")
body3.addObject(boolean9)
boolean9.Type = "Fuse"
boolean9.addObjects([body])
doc.recompute()

boolean10 = doc.addObject("PartDesign::Boolean", "Boolean009")
body3.addObject(boolean10)
boolean10.Type = "Fuse"
boolean10.addObjects([body2])
doc.recompute()

boolean11 = doc.addObject("PartDesign::Boolean", "Boolean010")
body3.addObject(boolean11)
boolean11.Type = "Fuse"
boolean11.addObjects([body5])
doc.recompute()

boolean12 = doc.addObject("PartDesign::Boolean", "Boolean011")
body3.addObject(boolean12)
boolean12.Type = "Fuse"
boolean12.addObjects([body7])
doc.recompute()

boolean13 = doc.addObject("PartDesign::Boolean", "Boolean012")
body3.addObject(boolean13)
boolean13.Type = "Fuse"
boolean13.addObjects([body9])
doc.recompute()

boolean14 = doc.addObject("PartDesign::Boolean", "Boolean013")
body3.addObject(boolean14)
boolean14.Type = "Fuse"
boolean14.addObjects([body11])
doc.recompute()

boolean15 = doc.addObject("PartDesign::Boolean", "Boolean014")
body3.addObject(boolean15)
boolean15.Type = "Fuse"
boolean15.addObjects([body13])
doc.recompute()

boolean16 = doc.addObject("PartDesign::Boolean", "Boolean015")
body3.addObject(boolean16)
boolean16.Type = "Fuse"
boolean16.addObjects([body15])

# Sketch on XZ plane
sketch21 = doc.addObject("Sketcher::SketchObject", "Sketch020")
body3.addObject(sketch21)
sketch21.AttachmentSupport = (doc.getObject("XZ_Plane002"), [""])
sketch21.MapMode = "FlatFace"
sketch21.AttachmentOffset = App.Placement(App.Vector(0, 0, -0.125 * 25.4), App.Rotation())
add_polygon(sketch21, [(5.1, -79.4), (5.1, -76.2), (11.4, -76.2), (11.4, -79.4)])  # lines 0-3
sketch21.addConstraint([
    Sketcher.Constraint("Vertical", 0),
    Sketcher.Constraint("Horizontal", 1),
    Sketcher.Constraint("Vertical", 2),
    Sketcher.Constraint("Horizontal", 3),
    Sketcher.Constraint("DistanceY", 0, 2, -1, 1, Q("3 in")),
    Sketcher.Constraint("DistanceX", 1, 1, 1, 2, Q("0.25 in")),
    Sketcher.Constraint("DistanceX", -1, 1, 0, 2, Q("0.2 in")),
    Sketcher.Constraint("DistanceY", 0, 1, 0, 2, Q("0.125 in")),
])
sketch21.setExpression("Constraints[9]", "Params.sketch21_width")
sketch21.setExpression("Constraints[11]", "Params.sketch21_height")
pocket4 = doc.addObject("PartDesign::Pocket", "Pocket003")
body3.addObject(pocket4)
pocket4.Profile = sketch21
pocket4.Type = "ThroughAll"
pocket4.Reversed = True

doc.recompute()
